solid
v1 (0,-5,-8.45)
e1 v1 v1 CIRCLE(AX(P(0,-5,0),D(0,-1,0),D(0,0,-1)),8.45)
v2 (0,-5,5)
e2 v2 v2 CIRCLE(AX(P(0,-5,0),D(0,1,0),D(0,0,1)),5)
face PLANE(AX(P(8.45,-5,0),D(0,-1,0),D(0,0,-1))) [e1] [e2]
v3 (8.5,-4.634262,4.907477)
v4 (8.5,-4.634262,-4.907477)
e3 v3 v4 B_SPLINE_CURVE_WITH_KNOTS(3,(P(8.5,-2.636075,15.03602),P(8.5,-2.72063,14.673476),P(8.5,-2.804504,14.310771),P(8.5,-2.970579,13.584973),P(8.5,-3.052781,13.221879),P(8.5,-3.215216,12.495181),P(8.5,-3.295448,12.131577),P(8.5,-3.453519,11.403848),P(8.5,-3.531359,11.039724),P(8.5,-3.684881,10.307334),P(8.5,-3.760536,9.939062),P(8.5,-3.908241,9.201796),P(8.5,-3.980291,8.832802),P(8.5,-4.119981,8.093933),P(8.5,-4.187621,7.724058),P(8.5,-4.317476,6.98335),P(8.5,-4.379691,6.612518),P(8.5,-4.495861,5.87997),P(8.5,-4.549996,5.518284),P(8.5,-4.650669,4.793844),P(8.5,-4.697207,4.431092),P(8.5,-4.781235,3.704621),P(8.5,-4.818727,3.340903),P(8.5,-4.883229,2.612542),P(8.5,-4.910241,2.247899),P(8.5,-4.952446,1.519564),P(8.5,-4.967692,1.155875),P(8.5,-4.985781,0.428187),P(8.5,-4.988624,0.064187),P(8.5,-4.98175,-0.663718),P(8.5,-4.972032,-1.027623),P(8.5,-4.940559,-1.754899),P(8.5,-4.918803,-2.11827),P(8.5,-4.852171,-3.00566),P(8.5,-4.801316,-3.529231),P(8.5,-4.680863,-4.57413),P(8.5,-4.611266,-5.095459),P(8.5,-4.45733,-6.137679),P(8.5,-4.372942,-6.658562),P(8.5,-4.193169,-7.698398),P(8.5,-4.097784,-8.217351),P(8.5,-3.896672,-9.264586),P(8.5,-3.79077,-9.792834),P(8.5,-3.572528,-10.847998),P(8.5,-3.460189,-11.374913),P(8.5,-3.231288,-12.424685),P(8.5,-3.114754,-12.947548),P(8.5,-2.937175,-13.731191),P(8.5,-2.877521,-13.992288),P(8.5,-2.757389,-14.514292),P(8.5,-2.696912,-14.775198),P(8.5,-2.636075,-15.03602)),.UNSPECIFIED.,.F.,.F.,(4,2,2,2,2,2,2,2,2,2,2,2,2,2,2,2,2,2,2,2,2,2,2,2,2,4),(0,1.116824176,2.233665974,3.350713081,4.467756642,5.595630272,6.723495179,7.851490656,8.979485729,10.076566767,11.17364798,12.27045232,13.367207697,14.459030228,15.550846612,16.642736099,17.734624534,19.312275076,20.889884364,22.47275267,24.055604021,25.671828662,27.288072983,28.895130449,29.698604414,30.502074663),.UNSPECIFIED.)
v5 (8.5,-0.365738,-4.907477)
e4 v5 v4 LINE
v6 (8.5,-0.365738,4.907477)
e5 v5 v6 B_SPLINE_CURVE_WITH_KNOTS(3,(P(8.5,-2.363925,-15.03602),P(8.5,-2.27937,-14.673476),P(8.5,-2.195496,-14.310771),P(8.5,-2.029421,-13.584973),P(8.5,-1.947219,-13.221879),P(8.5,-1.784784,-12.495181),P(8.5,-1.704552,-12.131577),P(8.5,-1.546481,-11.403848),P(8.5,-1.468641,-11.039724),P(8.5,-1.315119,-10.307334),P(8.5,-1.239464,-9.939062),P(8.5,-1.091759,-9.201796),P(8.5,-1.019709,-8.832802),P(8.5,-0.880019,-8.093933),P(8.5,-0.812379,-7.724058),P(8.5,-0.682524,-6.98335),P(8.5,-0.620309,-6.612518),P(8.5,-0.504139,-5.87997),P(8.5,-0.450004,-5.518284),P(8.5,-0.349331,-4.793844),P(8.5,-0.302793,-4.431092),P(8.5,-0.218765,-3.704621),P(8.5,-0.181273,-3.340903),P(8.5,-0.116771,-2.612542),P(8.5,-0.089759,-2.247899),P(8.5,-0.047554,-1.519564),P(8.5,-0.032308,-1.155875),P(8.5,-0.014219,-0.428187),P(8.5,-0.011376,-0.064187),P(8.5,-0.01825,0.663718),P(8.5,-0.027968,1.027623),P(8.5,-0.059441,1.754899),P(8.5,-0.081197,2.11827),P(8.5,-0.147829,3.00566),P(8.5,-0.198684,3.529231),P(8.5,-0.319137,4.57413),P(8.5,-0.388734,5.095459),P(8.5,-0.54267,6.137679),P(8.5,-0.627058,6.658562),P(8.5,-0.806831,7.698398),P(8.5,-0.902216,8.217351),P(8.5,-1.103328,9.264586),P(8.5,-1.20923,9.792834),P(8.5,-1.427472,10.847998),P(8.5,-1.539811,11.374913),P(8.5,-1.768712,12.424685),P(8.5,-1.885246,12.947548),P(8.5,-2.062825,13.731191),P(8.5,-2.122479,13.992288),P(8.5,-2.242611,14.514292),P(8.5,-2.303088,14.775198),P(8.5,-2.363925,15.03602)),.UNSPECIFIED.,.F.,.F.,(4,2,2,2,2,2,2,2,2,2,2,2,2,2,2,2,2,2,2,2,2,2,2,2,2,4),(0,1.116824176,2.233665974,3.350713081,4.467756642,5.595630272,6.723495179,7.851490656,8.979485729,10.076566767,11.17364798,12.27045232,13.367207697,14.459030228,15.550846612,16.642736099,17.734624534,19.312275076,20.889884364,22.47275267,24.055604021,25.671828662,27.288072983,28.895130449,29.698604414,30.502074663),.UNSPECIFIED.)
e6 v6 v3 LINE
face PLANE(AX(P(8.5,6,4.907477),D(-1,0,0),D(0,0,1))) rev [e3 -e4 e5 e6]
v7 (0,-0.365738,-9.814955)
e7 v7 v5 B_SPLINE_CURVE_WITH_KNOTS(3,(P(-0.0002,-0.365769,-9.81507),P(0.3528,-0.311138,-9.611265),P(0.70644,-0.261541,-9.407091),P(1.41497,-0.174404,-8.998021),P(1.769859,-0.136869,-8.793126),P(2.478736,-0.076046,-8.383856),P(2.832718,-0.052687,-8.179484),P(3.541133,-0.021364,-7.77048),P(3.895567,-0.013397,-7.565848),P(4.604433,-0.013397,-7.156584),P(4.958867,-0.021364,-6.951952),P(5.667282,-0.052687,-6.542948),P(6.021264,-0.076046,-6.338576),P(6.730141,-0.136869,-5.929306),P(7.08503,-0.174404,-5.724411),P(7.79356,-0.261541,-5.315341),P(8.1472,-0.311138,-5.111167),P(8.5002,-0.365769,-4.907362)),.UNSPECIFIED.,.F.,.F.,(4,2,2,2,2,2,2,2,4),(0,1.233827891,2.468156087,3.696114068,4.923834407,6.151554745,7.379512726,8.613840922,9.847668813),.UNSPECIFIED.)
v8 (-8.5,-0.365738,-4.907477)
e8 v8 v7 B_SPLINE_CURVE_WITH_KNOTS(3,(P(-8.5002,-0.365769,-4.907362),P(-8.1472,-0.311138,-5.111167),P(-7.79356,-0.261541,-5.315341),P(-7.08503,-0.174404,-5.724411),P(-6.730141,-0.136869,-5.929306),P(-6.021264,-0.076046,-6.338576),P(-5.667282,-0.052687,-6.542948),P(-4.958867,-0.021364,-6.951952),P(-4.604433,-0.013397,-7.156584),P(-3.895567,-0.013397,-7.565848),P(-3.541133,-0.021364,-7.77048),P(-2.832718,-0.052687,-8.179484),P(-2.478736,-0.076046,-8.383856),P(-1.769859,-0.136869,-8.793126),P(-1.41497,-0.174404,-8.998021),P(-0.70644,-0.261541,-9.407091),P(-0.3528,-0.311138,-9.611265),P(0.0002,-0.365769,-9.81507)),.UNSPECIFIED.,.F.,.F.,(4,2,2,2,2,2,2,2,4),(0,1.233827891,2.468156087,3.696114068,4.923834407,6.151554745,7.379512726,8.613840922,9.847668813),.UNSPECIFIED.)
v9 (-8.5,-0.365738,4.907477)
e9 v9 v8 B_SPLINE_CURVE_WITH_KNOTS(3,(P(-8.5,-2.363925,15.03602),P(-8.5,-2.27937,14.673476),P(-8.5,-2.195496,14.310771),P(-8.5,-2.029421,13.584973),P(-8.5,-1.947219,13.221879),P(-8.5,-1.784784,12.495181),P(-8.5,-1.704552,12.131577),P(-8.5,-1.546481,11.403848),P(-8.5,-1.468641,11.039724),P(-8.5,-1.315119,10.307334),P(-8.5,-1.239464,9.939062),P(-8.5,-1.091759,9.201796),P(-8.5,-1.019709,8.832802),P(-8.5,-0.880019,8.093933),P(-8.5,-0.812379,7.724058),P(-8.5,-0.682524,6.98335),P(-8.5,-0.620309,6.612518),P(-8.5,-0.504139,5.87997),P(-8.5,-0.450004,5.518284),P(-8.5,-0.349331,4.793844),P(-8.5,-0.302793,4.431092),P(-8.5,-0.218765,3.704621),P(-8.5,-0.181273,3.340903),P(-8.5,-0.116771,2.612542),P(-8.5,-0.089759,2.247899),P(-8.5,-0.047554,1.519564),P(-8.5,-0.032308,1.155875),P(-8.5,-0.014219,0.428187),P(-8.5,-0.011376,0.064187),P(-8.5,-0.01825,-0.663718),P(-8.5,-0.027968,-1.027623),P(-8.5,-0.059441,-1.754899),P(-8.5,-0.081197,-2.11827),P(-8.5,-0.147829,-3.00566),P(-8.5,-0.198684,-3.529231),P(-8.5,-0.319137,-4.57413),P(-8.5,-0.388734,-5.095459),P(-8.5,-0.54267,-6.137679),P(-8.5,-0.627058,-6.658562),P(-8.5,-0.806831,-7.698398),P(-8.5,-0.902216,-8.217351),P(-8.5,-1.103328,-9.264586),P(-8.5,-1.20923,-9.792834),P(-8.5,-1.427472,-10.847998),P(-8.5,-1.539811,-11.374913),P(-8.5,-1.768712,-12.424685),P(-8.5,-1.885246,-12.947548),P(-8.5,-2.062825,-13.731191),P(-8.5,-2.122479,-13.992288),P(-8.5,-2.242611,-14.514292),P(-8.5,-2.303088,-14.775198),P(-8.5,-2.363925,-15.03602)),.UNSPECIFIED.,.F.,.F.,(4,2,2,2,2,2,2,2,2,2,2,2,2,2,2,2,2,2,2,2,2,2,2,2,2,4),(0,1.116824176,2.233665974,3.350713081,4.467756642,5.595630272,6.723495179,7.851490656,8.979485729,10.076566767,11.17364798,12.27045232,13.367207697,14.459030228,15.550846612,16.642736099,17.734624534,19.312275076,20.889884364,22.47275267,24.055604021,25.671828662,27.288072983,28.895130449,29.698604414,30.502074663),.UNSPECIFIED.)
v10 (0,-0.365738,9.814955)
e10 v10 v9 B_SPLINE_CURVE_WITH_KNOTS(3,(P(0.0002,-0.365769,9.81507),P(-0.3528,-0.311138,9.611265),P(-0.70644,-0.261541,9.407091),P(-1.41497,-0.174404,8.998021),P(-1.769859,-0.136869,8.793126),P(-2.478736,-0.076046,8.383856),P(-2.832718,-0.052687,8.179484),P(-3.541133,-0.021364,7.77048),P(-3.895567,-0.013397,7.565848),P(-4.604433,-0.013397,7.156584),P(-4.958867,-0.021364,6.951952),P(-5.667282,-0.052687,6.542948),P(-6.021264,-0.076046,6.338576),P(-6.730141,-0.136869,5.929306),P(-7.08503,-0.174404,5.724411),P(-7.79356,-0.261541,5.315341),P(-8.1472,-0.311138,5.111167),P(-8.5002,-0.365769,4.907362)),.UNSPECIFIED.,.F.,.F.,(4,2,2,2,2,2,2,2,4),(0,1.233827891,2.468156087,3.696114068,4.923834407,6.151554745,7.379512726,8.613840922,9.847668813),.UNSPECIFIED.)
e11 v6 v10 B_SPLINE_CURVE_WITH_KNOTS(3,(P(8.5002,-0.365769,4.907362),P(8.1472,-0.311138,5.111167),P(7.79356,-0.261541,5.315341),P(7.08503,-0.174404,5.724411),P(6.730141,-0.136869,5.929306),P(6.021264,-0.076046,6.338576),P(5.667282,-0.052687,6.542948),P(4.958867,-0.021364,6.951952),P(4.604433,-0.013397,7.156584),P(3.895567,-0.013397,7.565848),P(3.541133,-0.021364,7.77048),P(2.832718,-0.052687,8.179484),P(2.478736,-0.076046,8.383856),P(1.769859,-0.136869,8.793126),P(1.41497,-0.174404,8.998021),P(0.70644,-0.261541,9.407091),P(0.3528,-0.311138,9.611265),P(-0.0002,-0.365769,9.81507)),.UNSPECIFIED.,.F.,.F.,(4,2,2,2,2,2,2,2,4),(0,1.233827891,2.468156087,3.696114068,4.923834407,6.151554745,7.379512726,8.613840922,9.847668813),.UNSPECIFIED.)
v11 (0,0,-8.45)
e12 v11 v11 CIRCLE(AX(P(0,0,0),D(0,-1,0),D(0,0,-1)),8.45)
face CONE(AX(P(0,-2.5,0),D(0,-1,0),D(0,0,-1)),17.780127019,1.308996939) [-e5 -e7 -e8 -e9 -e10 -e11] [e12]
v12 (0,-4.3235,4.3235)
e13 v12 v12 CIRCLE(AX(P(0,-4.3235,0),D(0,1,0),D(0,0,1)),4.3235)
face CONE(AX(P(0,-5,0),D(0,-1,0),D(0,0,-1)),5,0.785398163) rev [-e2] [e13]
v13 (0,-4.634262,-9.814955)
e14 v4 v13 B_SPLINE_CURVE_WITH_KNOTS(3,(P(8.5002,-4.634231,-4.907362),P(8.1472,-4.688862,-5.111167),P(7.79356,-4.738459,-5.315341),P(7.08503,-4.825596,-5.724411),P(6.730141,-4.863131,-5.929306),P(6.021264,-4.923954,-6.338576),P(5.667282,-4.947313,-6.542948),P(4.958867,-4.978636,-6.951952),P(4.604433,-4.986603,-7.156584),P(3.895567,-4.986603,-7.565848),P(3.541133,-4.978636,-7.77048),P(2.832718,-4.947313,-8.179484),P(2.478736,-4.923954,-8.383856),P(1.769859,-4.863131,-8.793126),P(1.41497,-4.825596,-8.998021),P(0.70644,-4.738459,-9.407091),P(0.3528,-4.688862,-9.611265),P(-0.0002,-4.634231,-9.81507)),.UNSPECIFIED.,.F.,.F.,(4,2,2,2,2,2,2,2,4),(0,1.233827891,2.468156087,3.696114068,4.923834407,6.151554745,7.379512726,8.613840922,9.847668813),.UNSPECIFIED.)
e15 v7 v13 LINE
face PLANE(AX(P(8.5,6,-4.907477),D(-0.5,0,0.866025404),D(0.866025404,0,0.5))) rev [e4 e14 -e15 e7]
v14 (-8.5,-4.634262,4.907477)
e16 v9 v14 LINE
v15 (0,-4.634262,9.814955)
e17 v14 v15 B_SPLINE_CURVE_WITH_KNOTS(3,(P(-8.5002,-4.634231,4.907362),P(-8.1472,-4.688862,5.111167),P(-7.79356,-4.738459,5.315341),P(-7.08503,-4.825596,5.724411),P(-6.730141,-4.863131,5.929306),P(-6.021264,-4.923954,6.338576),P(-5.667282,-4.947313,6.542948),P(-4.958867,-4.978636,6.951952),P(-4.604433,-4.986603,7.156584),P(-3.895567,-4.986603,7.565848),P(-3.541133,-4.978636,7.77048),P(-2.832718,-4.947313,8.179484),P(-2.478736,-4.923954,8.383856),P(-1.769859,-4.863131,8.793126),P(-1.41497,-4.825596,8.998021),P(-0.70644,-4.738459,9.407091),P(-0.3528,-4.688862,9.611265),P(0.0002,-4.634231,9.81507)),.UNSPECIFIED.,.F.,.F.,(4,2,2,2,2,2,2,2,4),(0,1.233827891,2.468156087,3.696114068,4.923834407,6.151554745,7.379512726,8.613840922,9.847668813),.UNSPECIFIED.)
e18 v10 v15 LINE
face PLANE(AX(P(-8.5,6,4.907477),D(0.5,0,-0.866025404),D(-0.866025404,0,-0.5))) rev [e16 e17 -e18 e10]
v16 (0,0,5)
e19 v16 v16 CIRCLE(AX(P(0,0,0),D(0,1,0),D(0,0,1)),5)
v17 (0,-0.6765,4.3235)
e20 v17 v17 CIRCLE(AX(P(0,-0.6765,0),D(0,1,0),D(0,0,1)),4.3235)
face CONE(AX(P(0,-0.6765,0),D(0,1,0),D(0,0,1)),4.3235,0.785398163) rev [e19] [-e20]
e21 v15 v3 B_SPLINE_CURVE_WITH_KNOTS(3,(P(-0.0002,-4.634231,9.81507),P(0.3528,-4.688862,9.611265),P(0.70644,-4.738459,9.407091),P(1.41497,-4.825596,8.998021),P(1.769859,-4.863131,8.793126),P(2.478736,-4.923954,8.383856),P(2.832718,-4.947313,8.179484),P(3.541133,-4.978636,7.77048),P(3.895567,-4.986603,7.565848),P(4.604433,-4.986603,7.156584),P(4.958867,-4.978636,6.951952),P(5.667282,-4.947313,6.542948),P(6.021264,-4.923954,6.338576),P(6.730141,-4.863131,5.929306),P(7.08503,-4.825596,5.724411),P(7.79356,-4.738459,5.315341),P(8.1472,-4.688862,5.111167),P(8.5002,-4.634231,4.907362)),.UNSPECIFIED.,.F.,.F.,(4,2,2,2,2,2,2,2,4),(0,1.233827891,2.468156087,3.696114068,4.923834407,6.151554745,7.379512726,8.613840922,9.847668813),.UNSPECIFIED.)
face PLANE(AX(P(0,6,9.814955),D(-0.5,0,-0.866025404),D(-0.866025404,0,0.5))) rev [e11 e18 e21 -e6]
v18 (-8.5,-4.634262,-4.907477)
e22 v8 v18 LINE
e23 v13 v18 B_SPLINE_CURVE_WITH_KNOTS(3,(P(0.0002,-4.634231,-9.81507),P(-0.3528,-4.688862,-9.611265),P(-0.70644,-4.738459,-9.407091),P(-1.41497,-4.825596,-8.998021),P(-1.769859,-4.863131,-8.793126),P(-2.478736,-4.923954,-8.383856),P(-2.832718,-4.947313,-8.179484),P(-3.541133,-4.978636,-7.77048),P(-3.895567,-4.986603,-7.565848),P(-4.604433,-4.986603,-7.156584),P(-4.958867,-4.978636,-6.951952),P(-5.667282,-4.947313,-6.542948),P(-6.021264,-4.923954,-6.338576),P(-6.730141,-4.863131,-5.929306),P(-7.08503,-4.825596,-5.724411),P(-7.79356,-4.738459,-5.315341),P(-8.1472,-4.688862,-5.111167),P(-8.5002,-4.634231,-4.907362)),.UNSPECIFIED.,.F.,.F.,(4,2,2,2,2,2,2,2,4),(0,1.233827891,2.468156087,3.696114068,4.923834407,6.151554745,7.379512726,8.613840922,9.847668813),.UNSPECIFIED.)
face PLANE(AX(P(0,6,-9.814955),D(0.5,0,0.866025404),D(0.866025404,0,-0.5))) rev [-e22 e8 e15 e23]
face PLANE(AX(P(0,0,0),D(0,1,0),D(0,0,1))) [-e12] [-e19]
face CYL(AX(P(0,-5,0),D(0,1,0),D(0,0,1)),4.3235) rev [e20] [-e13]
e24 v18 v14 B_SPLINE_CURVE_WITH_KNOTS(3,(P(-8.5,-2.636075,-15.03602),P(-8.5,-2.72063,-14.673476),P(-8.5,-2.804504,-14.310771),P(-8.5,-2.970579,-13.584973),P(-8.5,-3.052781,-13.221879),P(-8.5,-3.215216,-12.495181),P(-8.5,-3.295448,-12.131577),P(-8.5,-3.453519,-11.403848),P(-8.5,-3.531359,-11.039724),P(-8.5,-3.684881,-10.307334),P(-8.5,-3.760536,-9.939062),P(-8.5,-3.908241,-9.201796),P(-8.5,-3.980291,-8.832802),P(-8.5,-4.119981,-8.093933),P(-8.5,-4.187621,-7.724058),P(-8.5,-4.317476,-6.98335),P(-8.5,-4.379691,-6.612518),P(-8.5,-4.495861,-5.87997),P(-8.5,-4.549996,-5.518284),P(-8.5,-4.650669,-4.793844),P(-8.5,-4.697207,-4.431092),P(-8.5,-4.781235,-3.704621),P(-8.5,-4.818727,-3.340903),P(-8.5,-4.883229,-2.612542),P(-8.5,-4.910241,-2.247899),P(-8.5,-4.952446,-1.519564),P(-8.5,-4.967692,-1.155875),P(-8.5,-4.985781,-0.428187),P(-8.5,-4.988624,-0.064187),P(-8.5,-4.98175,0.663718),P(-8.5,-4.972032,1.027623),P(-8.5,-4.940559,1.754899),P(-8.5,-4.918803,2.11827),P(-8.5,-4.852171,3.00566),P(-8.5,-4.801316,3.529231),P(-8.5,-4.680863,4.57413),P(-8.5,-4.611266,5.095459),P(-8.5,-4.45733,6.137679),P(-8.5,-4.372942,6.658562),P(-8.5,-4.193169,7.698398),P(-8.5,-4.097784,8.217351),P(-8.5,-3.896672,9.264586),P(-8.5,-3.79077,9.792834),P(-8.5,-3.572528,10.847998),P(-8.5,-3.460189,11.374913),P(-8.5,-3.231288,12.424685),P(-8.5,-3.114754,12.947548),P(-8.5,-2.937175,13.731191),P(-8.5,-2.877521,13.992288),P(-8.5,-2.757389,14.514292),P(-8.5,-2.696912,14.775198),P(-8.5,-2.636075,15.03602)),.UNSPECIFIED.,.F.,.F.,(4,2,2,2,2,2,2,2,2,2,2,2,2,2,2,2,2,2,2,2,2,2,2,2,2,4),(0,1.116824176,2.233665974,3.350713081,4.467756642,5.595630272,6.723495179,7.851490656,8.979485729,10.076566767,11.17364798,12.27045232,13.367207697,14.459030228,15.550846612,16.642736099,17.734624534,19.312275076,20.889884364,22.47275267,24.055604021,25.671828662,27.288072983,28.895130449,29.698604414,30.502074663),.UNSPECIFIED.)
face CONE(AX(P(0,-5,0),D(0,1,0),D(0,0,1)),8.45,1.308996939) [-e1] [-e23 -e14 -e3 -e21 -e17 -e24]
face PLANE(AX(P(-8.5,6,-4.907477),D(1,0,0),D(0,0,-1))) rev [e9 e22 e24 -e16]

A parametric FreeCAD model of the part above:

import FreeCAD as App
import Part
import Sketcher
Q = App.Units.Quantity

doc = App.newDocument("Part")
body = doc.addObject("PartDesign::Body", "Body")

# Sketch on XY plane
sketch1 = doc.addObject("Sketcher::SketchObject", "Sketch")
body.addObject(sketch1)
sketch1.AttachmentSupport = (doc.XY_Plane, [""])
sketch1.MapMode = "FlatFace"
sketch1.addGeometry(Part.LineSegment(App.Vector(8, 0, 0), App.Vector(0, 0, 0)), False)
sketch1.addGeometry(Part.LineSegment(App.Vector(0, 0, 0), App.Vector(0, -5, 0)), False)
sketch1.addGeometry(Part.LineSegment(App.Vector(0, -5, 0), App.Vector(8, -5, 0)), False)
sketch1.addGeometry(Part.LineSegment(App.Vector(8, -5, 0), App.Vector(18, -2, 0)), False)
sketch1.addGeometry(Part.LineSegment(App.Vector(18, -2, 0), App.Vector(8, 0, 0)), False)
sketch1.addConstraint(Sketcher.Constraint("Coincident", 0, 2, 1, 1))
sketch1.addConstraint(Sketcher.Constraint("Coincident", 1, 2, 2, 1))
sketch1.addConstraint(Sketcher.Constraint("Coincident", 2, 2, 3, 1))
sketch1.addConstraint(Sketcher.Constraint("Coincident", 3, 2, 4, 1))
sketch1.addConstraint(Sketcher.Constraint("Coincident", 4, 2, 0, 1))
sketch1.addConstraint(Sketcher.Constraint("Horizontal", 0))
sketch1.addConstraint(Sketcher.Constraint("Vertical", 1))
sketch1.addConstraint(Sketcher.Constraint("Horizontal", 2))
sketch1.addConstraint(Sketcher.Constraint("Coincident", 0, 2, -1, 1))
sketch1.addConstraint(Sketcher.Constraint("Vertical", 2, 2, 4, 2))
sketch1.addConstraint(Sketcher.Constraint("Equal", 3, 4))
sketch1.addConstraint(Sketcher.Constraint("DistanceY", 1, 2, 1, 1, 5.0))
sketch1.addConstraint(Sketcher.Constraint("Angle", 3, Q("15 deg")))
sketch1.addConstraint(Sketcher.Constraint("DistanceX", 0, 2, 0, 1, 8.45))
revolution = doc.addObject("PartDesign::Revolution", "Revolution")
body.addObject(revolution)
revolution.Profile = sketch1
revolution.ReferenceAxis = (sketch1, ["V_Axis"])
revolution.Angle = 360

# Sketch on XZ plane
sketch2 = doc.addObject("Sketcher::SketchObject", "Sketch001")
body.addObject(sketch2)
sketch2.AttachmentSupport = (doc.XZ_Plane, [""])
sketch2.MapMode = "FlatFace"
sketch2.addGeometry(Part.LineSegment(App.Vector(-34, -34, 0), App.Vector(-34, 34, 0)), False)
sketch2.addGeometry(Part.LineSegment(App.Vector(-34, 34, 0), App.Vector(34, 34, 0)), False)
sketch2.addGeometry(Part.LineSegment(App.Vector(34, 34, 0), App.Vector(34, -34, 0)), False)
sketch2.addGeometry(Part.LineSegment(App.Vector(34, -34, 0), App.Vector(-34, -34, 0)), False)
sketch2.addGeometry(Part.LineSegment(App.Vector(0, 10, 0), App.Vector(-8, 5, 0)), False)
sketch2.addGeometry(Part.LineSegment(App.Vector(-8, 5, 0), App.Vector(-8, -5, 0)), False)
sketch2.addGeometry(Part.LineSegment(App.Vector(-8, -5, 0), App.Vector(0, -10, 0)), False)
sketch2.addGeometry(Part.LineSegment(App.Vector(0, -10, 0), App.Vector(8, -5, 0)), False)
sketch2.addGeometry(Part.LineSegment(App.Vector(8, -5, 0), App.Vector(8, 5, 0)), False)
sketch2.addGeometry(Part.LineSegment(App.Vector(8, 5, 0), App.Vector(0, 10, 0)), False)
sketch2.addConstraint(Sketcher.Constraint("Coincident", 0, 2, 1, 1))
sketch2.addConstraint(Sketcher.Constraint("Coincident", 1, 2, 2, 1))
sketch2.addConstraint(Sketcher.Constraint("Coincident", 2, 2, 3, 1))
sketch2.addConstraint(Sketcher.Constraint("Coincident", 3, 2, 0, 1))
sketch2.addConstraint(Sketcher.Constraint("Coincident", 4, 2, 5, 1))
sketch2.addConstraint(Sketcher.Constraint("Coincident", 5, 2, 6, 1))
sketch2.addConstraint(Sketcher.Constraint("Coincident", 6, 2, 7, 1))
sketch2.addConstraint(Sketcher.Constraint("Coincident", 7, 2, 8, 1))
sketch2.addConstraint(Sketcher.Constraint("Coincident", 8, 2, 9, 1))
sketch2.addConstraint(Sketcher.Constraint("Coincident", 9, 2, 4, 1))
sketch2.addConstraint(Sketcher.Constraint("Vertical", 0))
sketch2.addConstraint(Sketcher.Constraint("Horizontal", 1))
sketch2.addConstraint(Sketcher.Constraint("Vertical", 2))
sketch2.addConstraint(Sketcher.Constraint("Horizontal", 3))
sketch2.addConstraint(Sketcher.Constraint("Vertical", 5))
sketch2.addConstraint(Sketcher.Constraint("Vertical", 8))
sketch2.addConstraint(Sketcher.Constraint("Symmetric", 0, 2, 2, 2, -1, 1))
sketch2.addConstraint(Sketcher.Constraint("Symmetric", 4, 2, 7, 2, -1, 1))
sketch2.addConstraint(Sketcher.Constraint("Symmetric", 6, 2, 9, 2, -1, 1))
sketch2.addConstraint(Sketcher.Constraint("PointOnObject", 6, 2, -2))
sketch2.addConstraint(Sketcher.Constraint("Parallel", 6, 9))
sketch2.addConstraint(Sketcher.Constraint("Horizontal", 5, 2, 7, 2))
sketch2.addConstraint(Sketcher.Constraint("Equal", 3, 0))
sketch2.addConstraint(Sketcher.Constraint("DistanceX", 1, 1, 1, 2, 68.0))
sketch2.addConstraint(Sketcher.Constraint("Angle", 4, Q("-150 deg")))
sketch2.addConstraint(Sketcher.Constraint("DistanceX", 5, 2, 7, 2, 17.0))
sketch2.addConstraint(Sketcher.Constraint("DistanceY", 5, 2, 5, 1, 9.814955))
pocket1 = doc.addObject("PartDesign::Pocket", "Pocket")
body.addObject(pocket1)
pocket1.Profile = sketch2
pocket1.Type = "ThroughAll"
pocket1.Midplane = True

# Sketch on XY plane
sketch3 = doc.addObject("Sketcher::SketchObject", "Sketch002")
body.addObject(sketch3)
sketch3.AttachmentSupport = (doc.XY_Plane, [""])
sketch3.MapMode = "FlatFace"
sketch3.addGeometry(Part.LineSegment(App.Vector(5, 0, 0), App.Vector(0, 0, 0)), False)
sketch3.addGeometry(Part.LineSegment(App.Vector(0, 0, 0), App.Vector(0, -5, 0)), False)
sketch3.addGeometry(Part.LineSegment(App.Vector(0, -5, 0), App.Vector(5, -5, 0)), False)
sketch3.addGeometry(Part.LineSegment(App.Vector(5, -5, 0), App.Vector(4.3, -4.3, 0)), False)
sketch3.addGeometry(Part.LineSegment(App.Vector(4.3, -4.3, 0), App.Vector(4.3, -0.7, 0)), False)
sketch3.addGeometry(Part.LineSegment(App.Vector(4.3, -0.7, 0), App.Vector(5, 0, 0)), False)
sketch3.addConstraint(Sketcher.Constraint("Coincident", 0, 2, 1, 1))
sketch3.addConstraint(Sketcher.Constraint("Coincident", 1, 2, 2, 1))
sketch3.addConstraint(Sketcher.Constraint("Coincident", 2, 2, 3, 1))
sketch3.addConstraint(Sketcher.Constraint("Coincident", 3, 2, 4, 1))
sketch3.addConstraint(Sketcher.Constraint("Coincident", 4, 2, 5, 1))
sketch3.addConstraint(Sketcher.Constraint("Coincident", 5, 2, 0, 1))
sketch3.addConstraint(Sketcher.Constraint("Horizontal", 0))
sketch3.addConstraint(Sketcher.Constraint("Vertical", 1))
sketch3.addConstraint(Sketcher.Constraint("Horizontal", 2))
sketch3.addConstraint(Sketcher.Constraint("Vertical", 4))
sketch3.addConstraint(Sketcher.Constraint("Coincident", 0, 2, -1, 1))
sketch3.addConstraint(Sketcher.Constraint("Perpendicular", 3, 5))
sketch3.addConstraint(Sketcher.Constraint("Vertical", 2, 2, 5, 2))
sketch3.addConstraint(Sketcher.Constraint("Equal", 2, 1))
sketch3.addConstraint(Sketcher.Constraint("Equal", 3, 5))
sketch3.addConstraint(Sketcher.Constraint("DistanceX", 0, 2, 0, 1, 5.0))
sketch3.addConstraint(Sketcher.Constraint("DistanceY", 4, 1, 4, 2, 3.647))
groove = doc.addObject("PartDesign::Groove", "Groove")
body.addObject(groove)
groove.Profile = sketch3
groove.ReferenceAxis = (sketch3, ["V_Axis"])
groove.Angle = 360

doc.recompute()
